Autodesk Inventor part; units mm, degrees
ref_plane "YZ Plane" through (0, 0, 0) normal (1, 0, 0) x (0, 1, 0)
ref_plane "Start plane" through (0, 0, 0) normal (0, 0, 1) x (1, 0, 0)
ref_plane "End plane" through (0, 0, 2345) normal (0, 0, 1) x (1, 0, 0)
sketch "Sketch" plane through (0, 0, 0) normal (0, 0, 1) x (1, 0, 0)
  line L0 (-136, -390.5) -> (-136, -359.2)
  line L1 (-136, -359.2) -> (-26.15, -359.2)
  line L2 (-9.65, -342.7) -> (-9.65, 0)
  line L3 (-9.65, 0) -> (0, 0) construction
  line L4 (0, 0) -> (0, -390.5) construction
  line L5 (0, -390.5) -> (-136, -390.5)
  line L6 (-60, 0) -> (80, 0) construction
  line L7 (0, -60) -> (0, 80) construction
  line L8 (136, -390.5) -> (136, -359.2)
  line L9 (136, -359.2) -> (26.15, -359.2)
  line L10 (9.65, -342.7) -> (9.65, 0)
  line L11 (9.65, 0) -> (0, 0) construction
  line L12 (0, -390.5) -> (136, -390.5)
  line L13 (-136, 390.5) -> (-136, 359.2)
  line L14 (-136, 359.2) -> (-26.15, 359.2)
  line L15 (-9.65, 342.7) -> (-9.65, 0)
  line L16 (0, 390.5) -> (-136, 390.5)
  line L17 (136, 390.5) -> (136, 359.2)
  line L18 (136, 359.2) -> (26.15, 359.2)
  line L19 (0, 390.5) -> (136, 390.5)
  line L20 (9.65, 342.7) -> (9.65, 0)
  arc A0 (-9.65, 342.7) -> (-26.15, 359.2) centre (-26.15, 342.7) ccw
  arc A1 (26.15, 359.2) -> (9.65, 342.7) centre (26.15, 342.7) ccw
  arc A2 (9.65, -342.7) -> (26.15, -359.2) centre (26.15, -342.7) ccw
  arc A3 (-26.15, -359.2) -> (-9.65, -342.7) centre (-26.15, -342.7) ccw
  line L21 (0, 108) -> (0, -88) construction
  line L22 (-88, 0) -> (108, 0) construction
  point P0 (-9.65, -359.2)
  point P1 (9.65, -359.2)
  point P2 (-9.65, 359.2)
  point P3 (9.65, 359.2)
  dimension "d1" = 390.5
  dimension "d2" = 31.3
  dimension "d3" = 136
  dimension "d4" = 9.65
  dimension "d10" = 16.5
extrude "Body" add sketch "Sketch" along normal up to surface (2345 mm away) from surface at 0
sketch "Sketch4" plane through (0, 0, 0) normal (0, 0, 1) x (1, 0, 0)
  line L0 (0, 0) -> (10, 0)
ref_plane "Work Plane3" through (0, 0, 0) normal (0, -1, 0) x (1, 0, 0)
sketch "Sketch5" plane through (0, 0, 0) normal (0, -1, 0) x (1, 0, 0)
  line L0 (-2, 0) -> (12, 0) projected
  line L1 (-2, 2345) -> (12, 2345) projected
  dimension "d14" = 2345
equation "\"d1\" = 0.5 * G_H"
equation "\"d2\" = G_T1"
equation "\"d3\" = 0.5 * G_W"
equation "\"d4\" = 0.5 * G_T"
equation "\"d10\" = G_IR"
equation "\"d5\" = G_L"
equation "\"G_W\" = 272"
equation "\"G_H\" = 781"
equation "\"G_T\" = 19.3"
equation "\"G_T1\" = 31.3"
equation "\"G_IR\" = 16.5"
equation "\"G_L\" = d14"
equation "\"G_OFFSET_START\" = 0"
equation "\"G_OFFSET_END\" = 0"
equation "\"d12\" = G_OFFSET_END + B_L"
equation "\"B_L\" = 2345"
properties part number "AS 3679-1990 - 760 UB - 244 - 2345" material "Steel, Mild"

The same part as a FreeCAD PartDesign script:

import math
import FreeCAD as App
import Part
import Sketcher

V = App.Vector

doc = App.newDocument("Part")
body = doc.addObject("PartDesign::Body", "Body")

sketch1 = body.newObject("Sketcher::SketchObject", "Sketch")
sketch1.AttachmentSupport = (doc.getObject("XY_Plane"), [""])
sketch1.MapMode = "FlatFace"
sketch1.addGeometry([
    Part.LineSegment(V(-136, -359, 0), V(-136, -390, 0)),
    Part.LineSegment(V(-136, -390, 0), V(136, -390, 0)),
    Part.LineSegment(V(136, -390, 0), V(136, -359, 0)),
    Part.LineSegment(V(136, -359, 0), V(26, -359, 0)),
    Part.ArcOfCircle(Part.Circle(V(26, -343, 0), V(0, 0, 1), 16), math.radians(180), math.radians(270)),
    Part.LineSegment(V(10, -343, 0), V(10, 343, 0)),
    Part.ArcOfCircle(Part.Circle(V(26, 343, 0), V(0, 0, 1), 16), math.radians(90), math.radians(180)),
    Part.LineSegment(V(26, 359, 0), V(136, 359, 0)),
    Part.LineSegment(V(136, 359, 0), V(136, 390, 0)),
    Part.LineSegment(V(136, 390, 0), V(-136, 390, 0)),
    Part.LineSegment(V(-136, 390, 0), V(-136, 359, 0)),
    Part.LineSegment(V(-136, 359, 0), V(-26, 359, 0)),
    Part.ArcOfCircle(Part.Circle(V(-26, 343, 0), V(0, 0, 1), 16), math.radians(0), math.radians(90)),
    Part.LineSegment(V(-10, 343, 0), V(-10, -343, 0)),
    Part.ArcOfCircle(Part.Circle(V(-26, -343, 0), V(0, 0, 1), 16), math.radians(-90), math.radians(0)),
    Part.LineSegment(V(-26, -359, 0), V(-136, -359, 0)),
], False)
sketch1.addConstraint([
    Sketcher.Constraint("Coincident", 0, 2, 1, 1),
    Sketcher.Constraint("Coincident", 1, 2, 2, 1),
    Sketcher.Constraint("Coincident", 2, 2, 3, 1),
    Sketcher.Constraint("Tangent", 3, 2, 4, 2),
    Sketcher.Constraint("Tangent", 4, 1, 5, 1),
    Sketcher.Constraint("Tangent", 5, 2, 6, 2),
    Sketcher.Constraint("Tangent", 6, 1, 7, 1),
    Sketcher.Constraint("Coincident", 7, 2, 8, 1),
    Sketcher.Constraint("Coincident", 8, 2, 9, 1),
    Sketcher.Constraint("Coincident", 9, 2, 10, 1),
    Sketcher.Constraint("Coincident", 10, 2, 11, 1),
    Sketcher.Constraint("Tangent", 11, 2, 12, 2),
    Sketcher.Constraint("Tangent", 12, 1, 13, 1),
    Sketcher.Constraint("Tangent", 13, 2, 14, 2),
    Sketcher.Constraint("Tangent", 14, 1, 15, 1),
    Sketcher.Constraint("Coincident", 15, 2, 0, 1),
    Sketcher.Constraint("Vertical", 0),
    Sketcher.Constraint("Horizontal", 1),
    Sketcher.Constraint("Vertical", 2),
    Sketcher.Constraint("Horizontal", 3),
    Sketcher.Constraint("Vertical", 5),
    Sketcher.Constraint("Horizontal", 7),
    Sketcher.Constraint("Vertical", 8),
    Sketcher.Constraint("Horizontal", 9),
    Sketcher.Constraint("Vertical", 10),
    Sketcher.Constraint("Horizontal", 11),
    Sketcher.Constraint("Vertical", 13),
    Sketcher.Constraint("Horizontal", 15),
    Sketcher.Constraint("Equal", 4, 6),
    Sketcher.Constraint("Equal", 6, 12),
    Sketcher.Constraint("Equal", 12, 14),
    Sketcher.Constraint("Symmetric", 4, 3, 12, 3, -1, 1),
    Sketcher.Constraint("Symmetric", 0, 2, 8, 2, -1, 1),
    Sketcher.Constraint("Symmetric", 7, 2, 10, 2, -2),
    Sketcher.Constraint("Symmetric", 2, 2, 15, 2, -2),
    Sketcher.Constraint("Radius", 4, 16.5),
    Sketcher.Constraint("DistanceY", 0, 2, 0, 1, 31.3),
    Sketcher.Constraint("DistanceX", 0, 2, -1, 1, 136.0),
    Sketcher.Constraint("DistanceY", 0, 2, -1, 1, 390.5),
    Sketcher.Constraint("DistanceX", -1, 1, 4, 1, 9.65),
])
pad1 = body.newObject("PartDesign::Pad", "Pad")
pad1.Profile = sketch1
pad1.Length = 2345

doc.recompute()
